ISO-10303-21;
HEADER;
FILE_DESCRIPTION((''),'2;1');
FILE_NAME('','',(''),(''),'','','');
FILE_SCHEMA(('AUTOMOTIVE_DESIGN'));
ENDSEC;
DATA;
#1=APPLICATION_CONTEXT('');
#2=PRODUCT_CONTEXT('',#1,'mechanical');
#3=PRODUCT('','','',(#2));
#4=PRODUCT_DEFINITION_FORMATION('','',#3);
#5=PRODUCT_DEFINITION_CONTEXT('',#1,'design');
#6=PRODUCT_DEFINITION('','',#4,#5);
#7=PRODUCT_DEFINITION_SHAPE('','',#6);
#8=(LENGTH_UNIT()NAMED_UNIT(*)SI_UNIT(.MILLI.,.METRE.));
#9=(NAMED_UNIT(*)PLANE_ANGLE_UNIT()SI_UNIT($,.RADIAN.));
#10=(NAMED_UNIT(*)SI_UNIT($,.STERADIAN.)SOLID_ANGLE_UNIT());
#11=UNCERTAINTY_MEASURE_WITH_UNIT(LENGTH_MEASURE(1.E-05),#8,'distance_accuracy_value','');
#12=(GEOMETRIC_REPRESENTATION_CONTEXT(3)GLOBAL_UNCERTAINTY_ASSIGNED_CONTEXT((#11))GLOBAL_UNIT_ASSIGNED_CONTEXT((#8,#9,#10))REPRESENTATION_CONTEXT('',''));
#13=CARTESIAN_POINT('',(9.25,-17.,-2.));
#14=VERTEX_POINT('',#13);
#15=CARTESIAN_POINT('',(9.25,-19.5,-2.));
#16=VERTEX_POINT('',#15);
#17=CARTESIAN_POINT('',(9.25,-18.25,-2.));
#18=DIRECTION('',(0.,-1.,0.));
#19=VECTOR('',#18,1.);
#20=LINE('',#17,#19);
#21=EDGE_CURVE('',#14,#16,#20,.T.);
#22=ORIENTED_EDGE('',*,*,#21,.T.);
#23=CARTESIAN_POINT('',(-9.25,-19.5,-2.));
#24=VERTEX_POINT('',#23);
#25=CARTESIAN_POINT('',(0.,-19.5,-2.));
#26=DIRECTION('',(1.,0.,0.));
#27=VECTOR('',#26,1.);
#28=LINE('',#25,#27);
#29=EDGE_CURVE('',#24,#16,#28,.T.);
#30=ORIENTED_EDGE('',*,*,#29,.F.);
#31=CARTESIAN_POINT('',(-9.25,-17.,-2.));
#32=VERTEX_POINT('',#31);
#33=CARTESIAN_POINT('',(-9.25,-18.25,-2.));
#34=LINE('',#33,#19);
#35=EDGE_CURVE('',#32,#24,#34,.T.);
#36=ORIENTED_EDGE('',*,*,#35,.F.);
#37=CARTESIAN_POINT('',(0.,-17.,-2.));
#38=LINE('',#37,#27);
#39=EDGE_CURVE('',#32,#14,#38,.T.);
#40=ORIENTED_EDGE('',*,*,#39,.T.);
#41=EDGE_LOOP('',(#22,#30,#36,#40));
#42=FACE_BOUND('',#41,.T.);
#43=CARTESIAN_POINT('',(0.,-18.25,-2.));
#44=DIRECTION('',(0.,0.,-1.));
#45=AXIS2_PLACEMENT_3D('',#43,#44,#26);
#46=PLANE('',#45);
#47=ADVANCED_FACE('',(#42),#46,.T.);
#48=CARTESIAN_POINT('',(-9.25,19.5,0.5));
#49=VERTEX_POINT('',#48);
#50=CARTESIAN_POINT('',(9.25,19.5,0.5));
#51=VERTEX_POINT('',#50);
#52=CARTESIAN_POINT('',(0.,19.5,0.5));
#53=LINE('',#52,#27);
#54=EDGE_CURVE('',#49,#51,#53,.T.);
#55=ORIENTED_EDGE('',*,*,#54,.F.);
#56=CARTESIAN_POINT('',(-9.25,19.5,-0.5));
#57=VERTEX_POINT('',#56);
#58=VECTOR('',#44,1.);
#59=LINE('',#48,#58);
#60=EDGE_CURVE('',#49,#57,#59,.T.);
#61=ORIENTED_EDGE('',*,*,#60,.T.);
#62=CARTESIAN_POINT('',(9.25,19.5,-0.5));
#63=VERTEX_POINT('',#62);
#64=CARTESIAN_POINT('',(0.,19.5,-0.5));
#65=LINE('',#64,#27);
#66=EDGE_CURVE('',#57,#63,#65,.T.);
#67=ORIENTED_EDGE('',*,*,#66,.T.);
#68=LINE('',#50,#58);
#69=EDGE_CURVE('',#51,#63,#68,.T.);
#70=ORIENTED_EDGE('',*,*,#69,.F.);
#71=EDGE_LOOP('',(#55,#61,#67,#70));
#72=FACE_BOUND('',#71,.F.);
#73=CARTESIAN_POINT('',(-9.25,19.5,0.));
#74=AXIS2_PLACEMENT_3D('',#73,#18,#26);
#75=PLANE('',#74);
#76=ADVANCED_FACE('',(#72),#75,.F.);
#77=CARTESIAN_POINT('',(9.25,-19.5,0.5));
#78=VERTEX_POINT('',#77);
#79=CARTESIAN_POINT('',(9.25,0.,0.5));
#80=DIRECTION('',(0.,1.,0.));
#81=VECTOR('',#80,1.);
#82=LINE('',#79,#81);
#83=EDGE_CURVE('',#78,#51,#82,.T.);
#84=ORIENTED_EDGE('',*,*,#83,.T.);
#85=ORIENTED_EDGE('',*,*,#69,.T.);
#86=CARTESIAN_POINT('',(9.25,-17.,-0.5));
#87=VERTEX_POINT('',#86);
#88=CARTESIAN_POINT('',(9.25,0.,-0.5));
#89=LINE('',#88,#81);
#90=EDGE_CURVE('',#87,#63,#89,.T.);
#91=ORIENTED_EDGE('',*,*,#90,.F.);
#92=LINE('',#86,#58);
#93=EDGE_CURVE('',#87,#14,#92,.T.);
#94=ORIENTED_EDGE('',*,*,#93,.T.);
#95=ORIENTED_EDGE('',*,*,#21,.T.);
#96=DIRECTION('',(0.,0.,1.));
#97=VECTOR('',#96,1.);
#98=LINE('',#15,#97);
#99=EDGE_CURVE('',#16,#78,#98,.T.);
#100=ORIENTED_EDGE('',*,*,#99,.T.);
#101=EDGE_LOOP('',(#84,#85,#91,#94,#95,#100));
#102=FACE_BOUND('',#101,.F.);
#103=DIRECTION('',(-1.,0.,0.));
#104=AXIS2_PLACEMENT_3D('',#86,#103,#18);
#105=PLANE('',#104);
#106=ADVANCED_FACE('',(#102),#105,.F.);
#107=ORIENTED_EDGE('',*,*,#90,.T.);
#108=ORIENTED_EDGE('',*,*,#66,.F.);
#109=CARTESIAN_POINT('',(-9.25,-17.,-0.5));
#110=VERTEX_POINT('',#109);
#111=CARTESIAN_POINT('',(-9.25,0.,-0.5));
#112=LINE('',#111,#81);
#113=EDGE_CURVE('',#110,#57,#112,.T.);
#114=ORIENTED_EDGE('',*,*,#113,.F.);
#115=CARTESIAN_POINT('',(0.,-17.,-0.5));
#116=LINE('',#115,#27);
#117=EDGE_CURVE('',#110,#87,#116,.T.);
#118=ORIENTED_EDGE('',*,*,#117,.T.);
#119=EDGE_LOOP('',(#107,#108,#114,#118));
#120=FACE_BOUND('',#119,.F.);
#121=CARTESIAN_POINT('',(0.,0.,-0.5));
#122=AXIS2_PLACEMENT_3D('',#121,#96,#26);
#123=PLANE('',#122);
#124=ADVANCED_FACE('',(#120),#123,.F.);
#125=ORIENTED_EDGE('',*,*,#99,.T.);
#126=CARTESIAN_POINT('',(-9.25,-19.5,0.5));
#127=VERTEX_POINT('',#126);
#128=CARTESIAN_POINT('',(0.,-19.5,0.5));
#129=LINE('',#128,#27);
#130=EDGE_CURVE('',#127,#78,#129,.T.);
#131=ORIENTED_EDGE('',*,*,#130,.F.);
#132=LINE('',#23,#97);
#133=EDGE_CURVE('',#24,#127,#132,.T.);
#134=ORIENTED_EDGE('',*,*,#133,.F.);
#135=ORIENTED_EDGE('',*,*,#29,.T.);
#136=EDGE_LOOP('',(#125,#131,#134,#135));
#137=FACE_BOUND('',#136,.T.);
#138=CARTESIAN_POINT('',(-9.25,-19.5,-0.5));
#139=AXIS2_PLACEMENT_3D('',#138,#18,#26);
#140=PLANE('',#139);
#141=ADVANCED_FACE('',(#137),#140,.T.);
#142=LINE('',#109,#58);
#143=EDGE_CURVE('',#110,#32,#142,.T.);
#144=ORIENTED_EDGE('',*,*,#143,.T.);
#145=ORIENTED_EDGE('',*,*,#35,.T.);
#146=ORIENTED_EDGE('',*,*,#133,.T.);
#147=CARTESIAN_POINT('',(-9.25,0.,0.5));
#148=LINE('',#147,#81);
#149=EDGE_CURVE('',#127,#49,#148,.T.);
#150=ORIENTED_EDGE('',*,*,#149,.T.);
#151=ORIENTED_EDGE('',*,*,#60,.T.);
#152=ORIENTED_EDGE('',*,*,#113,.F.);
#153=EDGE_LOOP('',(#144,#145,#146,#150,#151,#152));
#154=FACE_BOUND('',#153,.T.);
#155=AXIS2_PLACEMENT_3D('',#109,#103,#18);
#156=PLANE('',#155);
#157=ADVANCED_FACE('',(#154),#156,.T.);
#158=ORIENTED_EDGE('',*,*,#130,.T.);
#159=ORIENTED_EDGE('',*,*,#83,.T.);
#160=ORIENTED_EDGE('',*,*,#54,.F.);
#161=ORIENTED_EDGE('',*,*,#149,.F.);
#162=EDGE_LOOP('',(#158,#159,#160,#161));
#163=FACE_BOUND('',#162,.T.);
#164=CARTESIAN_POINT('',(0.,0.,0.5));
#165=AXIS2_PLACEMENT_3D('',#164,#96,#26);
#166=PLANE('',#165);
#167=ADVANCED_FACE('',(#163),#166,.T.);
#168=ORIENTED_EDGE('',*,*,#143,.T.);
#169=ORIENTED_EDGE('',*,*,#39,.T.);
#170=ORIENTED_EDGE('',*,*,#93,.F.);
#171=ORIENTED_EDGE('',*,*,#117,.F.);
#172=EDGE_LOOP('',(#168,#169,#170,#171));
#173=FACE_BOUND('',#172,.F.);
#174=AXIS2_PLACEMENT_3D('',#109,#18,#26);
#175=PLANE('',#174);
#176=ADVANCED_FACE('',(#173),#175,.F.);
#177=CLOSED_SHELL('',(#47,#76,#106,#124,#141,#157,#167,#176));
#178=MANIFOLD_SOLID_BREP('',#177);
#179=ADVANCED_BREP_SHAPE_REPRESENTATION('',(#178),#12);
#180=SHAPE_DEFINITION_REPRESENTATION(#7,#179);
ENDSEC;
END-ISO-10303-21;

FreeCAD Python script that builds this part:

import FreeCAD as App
import Part
import Sketcher


def add_polygon(sketch, points):
    """Adds a closed chain of lines whose ends are joined by coincident constraints."""
    first, n = sketch.GeometryCount, len(points)
    for a, b in zip(points, points[1:] + points[:1]):
        sketch.addGeometry(Part.LineSegment(App.Vector(*a, 0), App.Vector(*b, 0)), False)
    for i in range(n):
        sketch.addConstraint(Sketcher.Constraint("Coincident", first + i, 2, first + (i + 1) % n, 1))

doc = App.newDocument("Part")
body = doc.addObject("PartDesign::Body", "Body")

# Sketch on XY plane
sketch1 = body.newObject("Sketcher::SketchObject", "Sketch")
sketch1.AttachmentSupport = (doc.getObject("XY_Plane"), [""])
sketch1.MapMode = "FlatFace"
add_polygon(sketch1, [(-9, 20), (-9, -20), (9, -20), (9, 20)])  # lines 0-3
sketch1.addConstraint([
    Sketcher.Constraint("Vertical", 0),
    Sketcher.Constraint("Horizontal", 1),
    Sketcher.Constraint("Vertical", 2),
    Sketcher.Constraint("Horizontal", 3),
    Sketcher.Constraint("Symmetric", 0, 2, 2, 2, -1, 1),
    Sketcher.Constraint("DistanceY", 0, 2, 0, 1, 39.0),
    Sketcher.Constraint("DistanceX", 1, 1, 1, 2, 18.5),
])
pad1 = body.newObject("PartDesign::Pad", "Pad")
pad1.Profile = sketch1
pad1.Length = 1
pad1.Midplane = True

# Sketch on XY plane
sketch2 = body.newObject("Sketcher::SketchObject", "Sketch001")
sketch2.AttachmentSupport = (doc.getObject("XY_Plane"), [""])
sketch2.MapMode = "FlatFace"
sketch2.AttachmentOffset = App.Placement(App.Vector(0, 0, -0.5), App.Rotation())
add_polygon(sketch2, [(-9.2, -19.5), (-9.2, -17), (9.2, -17), (9.2, -19.5)])  # lines 0-3
sketch2.addConstraint([
    Sketcher.Constraint("Vertical", 0),
    Sketcher.Constraint("Horizontal", 1),
    Sketcher.Constraint("Vertical", 2),
    Sketcher.Constraint("Horizontal", 3),
    Sketcher.Constraint("DistanceX", 1, 1, 1, 2, 18.5),
    Sketcher.Constraint("DistanceY", 0, 1, 0, 2, 2.5),
    Sketcher.Constraint("DistanceY", 0, 2, -1, 1, 17.0),
    Sketcher.Constraint("DistanceX", 0, 2, -1, 1, 9.25),
])
pad2 = body.newObject("PartDesign::Pad", "Pad001")
pad2.Profile = sketch2
pad2.Length = 1.5
pad2.Reversed = True

doc.recompute()
